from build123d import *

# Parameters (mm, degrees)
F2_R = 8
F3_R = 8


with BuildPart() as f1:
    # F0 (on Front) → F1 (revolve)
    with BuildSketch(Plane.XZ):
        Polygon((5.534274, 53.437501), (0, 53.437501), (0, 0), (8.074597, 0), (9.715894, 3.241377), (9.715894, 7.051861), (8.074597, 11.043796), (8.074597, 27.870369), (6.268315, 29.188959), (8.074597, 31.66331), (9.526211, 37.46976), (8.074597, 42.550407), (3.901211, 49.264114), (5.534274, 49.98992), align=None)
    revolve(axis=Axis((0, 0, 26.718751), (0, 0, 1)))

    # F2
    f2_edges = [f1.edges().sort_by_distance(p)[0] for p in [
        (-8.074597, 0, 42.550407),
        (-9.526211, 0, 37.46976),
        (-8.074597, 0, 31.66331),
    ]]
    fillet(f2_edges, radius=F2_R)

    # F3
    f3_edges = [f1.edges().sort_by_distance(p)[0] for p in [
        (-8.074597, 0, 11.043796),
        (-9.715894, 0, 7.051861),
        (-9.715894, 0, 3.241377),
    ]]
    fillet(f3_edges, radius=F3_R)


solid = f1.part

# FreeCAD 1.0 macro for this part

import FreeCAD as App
import Part
import Sketcher

V = App.Vector


def edges_at(feature, points):
    """Names of the edges that pass closest to the given points."""
    edges = feature.Shape.Edges
    near = lambda p: min(range(len(edges)), key=lambda i: edges[i].distToShape(Part.Vertex(*p))[0])
    return sorted({f"Edge{near(p) + 1}" for p in points})

doc = App.newDocument("Part")
params = doc.addObject("Spreadsheet::Sheet", "Params")
for row, (alias, value) in enumerate([
    ("revolution_angle", "360 deg"),
    ("fillet_radius", "8 mm"),
    ("fillet2_radius", "8 mm"),
], start=1):
    params.set(f"A{row}", alias)
    params.set(f"B{row}", "=" + value)
    params.setAlias(f"B{row}", alias)

body = doc.addObject("PartDesign::Body", "Body")

sketch1 = body.newObject("Sketcher::SketchObject", "Sketch")
sketch1.AttachmentSupport = (doc.getObject("XZ_Plane"), [""])
sketch1.MapMode = "FlatFace"
sketch1.addGeometry([
    Part.LineSegment(V(5.5, 53.4, 0), V(0, 53.4, 0)),
    Part.LineSegment(V(0, 53.4, 0), V(0, 0, 0)),
    Part.LineSegment(V(0, 0, 0), V(8.1, 0, 0)),
    Part.LineSegment(V(8.1, 0, 0), V(9.7, 3.2, 0)),
    Part.LineSegment(V(9.7, 3.2, 0), V(9.7, 7.1, 0)),
    Part.LineSegment(V(9.7, 7.1, 0), V(8.1, 11, 0)),
    Part.LineSegment(V(8.1, 11, 0), V(8.1, 27.9, 0)),
    Part.LineSegment(V(8.1, 27.9, 0), V(6.3, 29.2, 0)),
    Part.LineSegment(V(6.3, 29.2, 0), V(8.1, 31.7, 0)),
    Part.LineSegment(V(8.1, 31.7, 0), V(9.5, 37.5, 0)),
    Part.LineSegment(V(9.5, 37.5, 0), V(8.1, 42.6, 0)),
    Part.LineSegment(V(8.1, 42.6, 0), V(3.9, 49.3, 0)),
    Part.LineSegment(V(3.9, 49.3, 0), V(5.5, 50, 0)),
    Part.LineSegment(V(5.5, 50, 0), V(5.5, 53.4, 0)),
], False)
sketch1.addConstraint([
    Sketcher.Constraint("Coincident", 0, 2, 1, 1),
    Sketcher.Constraint("Coincident", 1, 2, 2, 1),
    Sketcher.Constraint("Coincident", 2, 2, 3, 1),
    Sketcher.Constraint("Coincident", 3, 2, 4, 1),
    Sketcher.Constraint("Coincident", 4, 2, 5, 1),
    Sketcher.Constraint("Coincident", 5, 2, 6, 1),
    Sketcher.Constraint("Coincident", 6, 2, 7, 1),
    Sketcher.Constraint("Coincident", 7, 2, 8, 1),
    Sketcher.Constraint("Coincident", 8, 2, 9, 1),
    Sketcher.Constraint("Coincident", 9, 2, 10, 1),
    Sketcher.Constraint("Coincident", 10, 2, 11, 1),
    Sketcher.Constraint("Coincident", 11, 2, 12, 1),
    Sketcher.Constraint("Coincident", 12, 2, 13, 1),
    Sketcher.Constraint("Coincident", 13, 2, 0, 1),
    Sketcher.Constraint("Horizontal", 0),
    Sketcher.Constraint("Vertical", 1),
    Sketcher.Constraint("Horizontal", 2),
    Sketcher.Constraint("Vertical", 4),
    Sketcher.Constraint("Vertical", 6),
    Sketcher.Constraint("Vertical", 13),
    Sketcher.Constraint("Coincident", 1, 2, -1, 1),
    Sketcher.Constraint("Perpendicular", 7, 8),
    Sketcher.Constraint("Vertical", 2, 2, 5, 2),
    Sketcher.Constraint("Vertical", 6, 2, 8, 2),
    Sketcher.Constraint("Vertical", 8, 2, 10, 2),
    Sketcher.Constraint("DistanceY", 1, 2, 1, 1, 53.437501),
    Sketcher.Constraint("DistanceX", 11, 2, 9, 2, 5.625),
    Sketcher.Constraint("DistanceY", 13, 1, 13, 2, 3.447581),
    Sketcher.Constraint("DistanceY", 4, 2, 7, 2, 22.137098),
    Sketcher.Constraint("DistanceY", 7, 2, 9, 2, 8.280801),
    Sketcher.Constraint("Distance", 5, 4.316179),
    Sketcher.Constraint("Distance", 12, 1.78709),
    Sketcher.Constraint("DistanceX", 0, 2, 0, 1, 5.534274),
    Sketcher.Constraint("DistanceX", 2, 1, 2, 2, 8.074597),
    Sketcher.Constraint("DistanceY", 4, 1, 4, 2, 3.810484),
    Sketcher.Constraint("DistanceY", 6, 1, 6, 2, 16.826573),
    Sketcher.Constraint("DistanceY", -1, 1, 4, 2, 7.051861),
    Sketcher.Constraint("DistanceY", -1, 1, 6, 2, 27.870369),
    Sketcher.Constraint("DistanceY", -1, 1, 8, 2, 31.66331),
    Sketcher.Constraint("DistanceX", -1, 1, 9, 2, 9.526211),
    Sketcher.Constraint("Distance", 10, 5.283953),
])
revolution = body.newObject("PartDesign::Revolution", "Revolution")
revolution.Profile = sketch1
revolution.ReferenceAxis = (sketch1, ["V_Axis"])
revolution.setExpression("Angle", "Params.revolution_angle")
doc.recompute()

fillet = body.newObject("PartDesign::Fillet", "Fillet")
fillet.Base = (revolution, edges_at(revolution, [(-8.075, 0, 42.55), (-9.526, 0, 37.47), (-8.075, 0, 31.663)]))
fillet.setExpression("Radius", "Params.fillet_radius")
doc.recompute()

fillet2 = body.newObject("PartDesign::Fillet", "Fillet001")
fillet2.Base = (fillet, edges_at(fillet, [(-8.075, 0, 11.044), (-9.716, 0, 7.052), (-9.716, 0, 3.241)]))
fillet2.setExpression("Radius", "Params.fillet2_radius")

doc.recompute()
